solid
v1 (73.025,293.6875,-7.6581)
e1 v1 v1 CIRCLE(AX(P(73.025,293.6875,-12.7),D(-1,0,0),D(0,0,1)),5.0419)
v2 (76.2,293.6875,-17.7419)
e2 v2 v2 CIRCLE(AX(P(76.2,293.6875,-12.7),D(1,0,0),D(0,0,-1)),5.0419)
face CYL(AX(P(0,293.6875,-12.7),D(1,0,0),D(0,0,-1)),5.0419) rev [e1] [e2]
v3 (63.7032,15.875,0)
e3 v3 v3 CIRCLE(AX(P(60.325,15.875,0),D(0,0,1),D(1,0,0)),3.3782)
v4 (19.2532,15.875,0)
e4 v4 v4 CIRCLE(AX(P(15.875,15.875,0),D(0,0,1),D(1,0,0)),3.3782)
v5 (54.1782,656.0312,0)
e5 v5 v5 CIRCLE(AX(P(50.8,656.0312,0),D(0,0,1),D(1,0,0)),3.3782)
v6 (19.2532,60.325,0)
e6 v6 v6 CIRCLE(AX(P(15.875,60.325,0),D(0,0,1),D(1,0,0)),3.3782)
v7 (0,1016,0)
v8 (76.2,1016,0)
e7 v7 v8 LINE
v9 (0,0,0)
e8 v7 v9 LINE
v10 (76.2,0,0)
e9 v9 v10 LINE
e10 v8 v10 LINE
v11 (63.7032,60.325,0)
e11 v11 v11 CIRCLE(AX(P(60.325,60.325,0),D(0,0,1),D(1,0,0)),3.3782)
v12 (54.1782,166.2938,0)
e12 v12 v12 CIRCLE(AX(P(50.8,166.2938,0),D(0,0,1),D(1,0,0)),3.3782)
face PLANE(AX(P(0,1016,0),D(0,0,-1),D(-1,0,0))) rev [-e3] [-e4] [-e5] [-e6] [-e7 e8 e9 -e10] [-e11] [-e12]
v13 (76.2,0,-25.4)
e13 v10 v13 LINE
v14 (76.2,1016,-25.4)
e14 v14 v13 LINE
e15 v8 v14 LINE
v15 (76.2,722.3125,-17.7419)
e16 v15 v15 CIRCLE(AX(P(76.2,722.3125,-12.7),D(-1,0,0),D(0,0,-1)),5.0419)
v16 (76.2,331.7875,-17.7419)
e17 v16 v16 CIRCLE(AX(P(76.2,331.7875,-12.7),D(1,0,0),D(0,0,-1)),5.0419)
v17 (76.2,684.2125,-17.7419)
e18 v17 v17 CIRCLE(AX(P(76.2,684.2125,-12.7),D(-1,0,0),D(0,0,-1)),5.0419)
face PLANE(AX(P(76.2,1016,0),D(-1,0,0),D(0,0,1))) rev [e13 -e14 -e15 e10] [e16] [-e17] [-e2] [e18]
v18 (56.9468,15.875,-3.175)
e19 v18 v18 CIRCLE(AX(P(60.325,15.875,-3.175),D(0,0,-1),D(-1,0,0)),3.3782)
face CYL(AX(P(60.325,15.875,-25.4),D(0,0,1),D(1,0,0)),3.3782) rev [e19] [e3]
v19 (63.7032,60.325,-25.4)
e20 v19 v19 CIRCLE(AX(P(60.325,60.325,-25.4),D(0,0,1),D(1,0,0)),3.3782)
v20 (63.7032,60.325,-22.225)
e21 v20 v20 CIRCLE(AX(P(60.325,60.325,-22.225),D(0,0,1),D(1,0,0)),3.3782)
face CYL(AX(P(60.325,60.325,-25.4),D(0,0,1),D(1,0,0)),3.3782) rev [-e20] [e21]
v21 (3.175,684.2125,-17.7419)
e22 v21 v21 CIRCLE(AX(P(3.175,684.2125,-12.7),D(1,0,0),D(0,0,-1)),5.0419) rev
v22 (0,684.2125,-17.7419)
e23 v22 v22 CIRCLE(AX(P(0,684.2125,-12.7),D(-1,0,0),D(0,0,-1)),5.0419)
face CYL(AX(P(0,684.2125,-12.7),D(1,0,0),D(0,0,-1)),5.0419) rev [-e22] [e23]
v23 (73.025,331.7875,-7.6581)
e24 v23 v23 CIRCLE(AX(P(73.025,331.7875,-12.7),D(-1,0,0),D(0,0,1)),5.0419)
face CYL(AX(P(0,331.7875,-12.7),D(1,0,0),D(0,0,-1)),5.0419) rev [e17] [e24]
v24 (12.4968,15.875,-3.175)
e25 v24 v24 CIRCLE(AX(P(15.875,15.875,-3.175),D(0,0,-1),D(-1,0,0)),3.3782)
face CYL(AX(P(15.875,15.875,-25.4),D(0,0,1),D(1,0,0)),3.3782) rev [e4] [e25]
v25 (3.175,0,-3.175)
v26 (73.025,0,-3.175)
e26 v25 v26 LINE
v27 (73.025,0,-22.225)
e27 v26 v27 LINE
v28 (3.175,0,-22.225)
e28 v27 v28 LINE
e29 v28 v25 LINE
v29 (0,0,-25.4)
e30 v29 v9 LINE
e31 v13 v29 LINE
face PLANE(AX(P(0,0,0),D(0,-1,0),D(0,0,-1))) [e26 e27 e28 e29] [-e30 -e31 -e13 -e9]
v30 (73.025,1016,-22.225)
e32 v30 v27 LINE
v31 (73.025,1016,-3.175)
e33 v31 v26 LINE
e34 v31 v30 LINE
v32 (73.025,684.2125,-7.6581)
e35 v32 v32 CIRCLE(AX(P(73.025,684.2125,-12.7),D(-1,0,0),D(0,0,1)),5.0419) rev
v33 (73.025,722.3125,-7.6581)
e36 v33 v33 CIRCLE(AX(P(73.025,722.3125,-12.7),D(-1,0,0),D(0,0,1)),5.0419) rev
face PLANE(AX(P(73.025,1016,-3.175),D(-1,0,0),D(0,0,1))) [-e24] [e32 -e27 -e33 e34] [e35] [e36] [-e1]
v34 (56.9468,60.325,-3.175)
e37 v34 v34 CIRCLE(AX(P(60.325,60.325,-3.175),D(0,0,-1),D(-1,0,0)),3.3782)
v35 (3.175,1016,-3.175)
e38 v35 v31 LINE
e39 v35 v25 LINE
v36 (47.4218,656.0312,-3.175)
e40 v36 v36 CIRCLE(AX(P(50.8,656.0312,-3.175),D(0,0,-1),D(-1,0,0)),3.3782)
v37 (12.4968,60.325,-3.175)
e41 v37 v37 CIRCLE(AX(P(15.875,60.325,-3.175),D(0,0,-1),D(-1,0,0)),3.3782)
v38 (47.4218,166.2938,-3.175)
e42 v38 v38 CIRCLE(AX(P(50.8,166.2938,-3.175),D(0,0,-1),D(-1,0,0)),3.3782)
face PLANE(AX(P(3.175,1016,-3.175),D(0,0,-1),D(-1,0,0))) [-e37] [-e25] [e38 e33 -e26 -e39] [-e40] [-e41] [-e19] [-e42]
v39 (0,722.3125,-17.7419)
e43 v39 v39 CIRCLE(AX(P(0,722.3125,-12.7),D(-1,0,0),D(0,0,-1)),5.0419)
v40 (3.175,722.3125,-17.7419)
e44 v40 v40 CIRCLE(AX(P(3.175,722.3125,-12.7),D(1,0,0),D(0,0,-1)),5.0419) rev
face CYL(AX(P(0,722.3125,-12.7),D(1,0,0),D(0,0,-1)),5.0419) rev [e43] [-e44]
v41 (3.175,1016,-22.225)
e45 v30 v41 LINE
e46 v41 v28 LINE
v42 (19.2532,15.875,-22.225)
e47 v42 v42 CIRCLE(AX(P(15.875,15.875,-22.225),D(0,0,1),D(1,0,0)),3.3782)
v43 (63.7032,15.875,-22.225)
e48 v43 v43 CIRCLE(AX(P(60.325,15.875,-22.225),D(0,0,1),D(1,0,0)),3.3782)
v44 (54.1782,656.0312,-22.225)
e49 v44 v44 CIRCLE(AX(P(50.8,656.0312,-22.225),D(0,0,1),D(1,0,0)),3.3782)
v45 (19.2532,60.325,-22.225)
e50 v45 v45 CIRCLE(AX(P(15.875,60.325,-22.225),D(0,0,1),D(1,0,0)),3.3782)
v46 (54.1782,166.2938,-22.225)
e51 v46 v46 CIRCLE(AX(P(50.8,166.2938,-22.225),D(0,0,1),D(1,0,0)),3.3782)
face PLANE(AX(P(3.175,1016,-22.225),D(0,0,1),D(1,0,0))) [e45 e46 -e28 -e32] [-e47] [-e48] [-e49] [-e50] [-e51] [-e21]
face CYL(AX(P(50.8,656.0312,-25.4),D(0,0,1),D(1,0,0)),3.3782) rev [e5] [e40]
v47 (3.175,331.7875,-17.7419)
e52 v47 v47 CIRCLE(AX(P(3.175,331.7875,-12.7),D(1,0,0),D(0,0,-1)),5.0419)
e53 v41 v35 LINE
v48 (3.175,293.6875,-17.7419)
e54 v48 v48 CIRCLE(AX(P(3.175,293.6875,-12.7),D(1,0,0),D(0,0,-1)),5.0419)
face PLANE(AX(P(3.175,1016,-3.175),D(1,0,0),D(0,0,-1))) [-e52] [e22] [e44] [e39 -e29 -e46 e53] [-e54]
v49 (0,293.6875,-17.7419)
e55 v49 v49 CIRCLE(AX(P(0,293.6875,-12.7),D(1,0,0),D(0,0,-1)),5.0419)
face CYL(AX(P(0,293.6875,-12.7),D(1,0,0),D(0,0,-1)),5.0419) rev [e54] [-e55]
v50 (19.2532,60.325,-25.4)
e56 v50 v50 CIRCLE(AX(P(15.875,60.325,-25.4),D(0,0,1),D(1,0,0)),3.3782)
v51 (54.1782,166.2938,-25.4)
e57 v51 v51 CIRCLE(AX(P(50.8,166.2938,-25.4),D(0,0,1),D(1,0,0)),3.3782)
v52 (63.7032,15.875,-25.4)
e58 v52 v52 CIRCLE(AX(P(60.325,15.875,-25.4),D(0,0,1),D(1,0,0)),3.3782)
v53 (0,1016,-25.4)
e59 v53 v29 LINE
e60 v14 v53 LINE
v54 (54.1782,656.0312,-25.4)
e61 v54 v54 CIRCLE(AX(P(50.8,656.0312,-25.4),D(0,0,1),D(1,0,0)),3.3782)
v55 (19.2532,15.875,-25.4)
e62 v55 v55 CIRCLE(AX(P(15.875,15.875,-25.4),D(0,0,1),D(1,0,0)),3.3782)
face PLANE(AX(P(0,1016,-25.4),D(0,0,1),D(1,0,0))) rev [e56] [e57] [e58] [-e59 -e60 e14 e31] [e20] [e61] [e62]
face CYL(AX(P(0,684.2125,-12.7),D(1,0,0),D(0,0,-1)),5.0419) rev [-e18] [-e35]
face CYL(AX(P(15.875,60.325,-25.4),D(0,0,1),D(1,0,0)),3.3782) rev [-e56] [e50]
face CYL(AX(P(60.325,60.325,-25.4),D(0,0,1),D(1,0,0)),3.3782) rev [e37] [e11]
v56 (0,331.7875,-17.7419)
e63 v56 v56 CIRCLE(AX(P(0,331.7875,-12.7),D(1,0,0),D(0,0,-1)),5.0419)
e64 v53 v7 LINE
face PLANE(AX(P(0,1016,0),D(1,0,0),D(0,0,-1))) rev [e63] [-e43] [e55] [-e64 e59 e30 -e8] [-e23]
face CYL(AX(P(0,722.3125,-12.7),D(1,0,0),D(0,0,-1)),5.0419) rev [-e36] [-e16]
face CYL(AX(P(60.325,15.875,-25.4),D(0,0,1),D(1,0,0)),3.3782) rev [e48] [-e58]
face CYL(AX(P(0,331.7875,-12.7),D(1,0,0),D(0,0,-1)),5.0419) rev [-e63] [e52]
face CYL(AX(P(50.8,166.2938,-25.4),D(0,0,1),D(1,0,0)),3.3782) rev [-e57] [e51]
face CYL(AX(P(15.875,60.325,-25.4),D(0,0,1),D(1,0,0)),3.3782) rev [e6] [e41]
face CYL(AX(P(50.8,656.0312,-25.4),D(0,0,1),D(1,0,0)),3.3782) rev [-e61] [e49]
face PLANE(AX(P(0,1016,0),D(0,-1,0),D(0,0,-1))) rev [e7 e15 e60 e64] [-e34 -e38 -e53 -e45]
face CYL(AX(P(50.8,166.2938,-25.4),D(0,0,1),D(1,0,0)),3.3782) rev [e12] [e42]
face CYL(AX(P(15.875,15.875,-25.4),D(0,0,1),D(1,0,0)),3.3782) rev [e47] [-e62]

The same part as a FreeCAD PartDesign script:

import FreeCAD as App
import Part
import Sketcher

V = App.Vector
Q = App.Units.Quantity


def add_polygon(sketch, points):
    """Adds a closed chain of lines whose ends are joined by coincident constraints."""
    first, n = sketch.GeometryCount, len(points)
    for a, b in zip(points, points[1:] + points[:1]):
        sketch.addGeometry(Part.LineSegment(App.Vector(*a, 0), App.Vector(*b, 0)), False)
    for i in range(n):
        sketch.addConstraint(Sketcher.Constraint("Coincident", first + i, 2, first + (i + 1) % n, 1))

doc = App.newDocument("Part")
body = doc.addObject("PartDesign::Body", "Body")

# Sketch on XZ plane
sketch1 = doc.addObject("Sketcher::SketchObject", "Sketch")
body.addObject(sketch1)
sketch1.AttachmentSupport = (doc.XZ_Plane, [""])
sketch1.MapMode = "FlatFace"
add_polygon(sketch1, [(0, -25.4), (0, 0), (76.2, 0), (76.2, -25.4)])  # lines 0-3
add_polygon(sketch1, [(73.025, -3.175), (3.175, -3.175), (3.175, -22.225), (73.025, -22.225)])  # lines 4-7
sketch1.addConstraint([
    Sketcher.Constraint("Vertical", 0),
    Sketcher.Constraint("Horizontal", 1),
    Sketcher.Constraint("Vertical", 2),
    Sketcher.Constraint("Horizontal", 3),
    Sketcher.Constraint("Horizontal", 4),
    Sketcher.Constraint("Vertical", 5),
    Sketcher.Constraint("Horizontal", 6),
    Sketcher.Constraint("Vertical", 7),
    Sketcher.Constraint("Coincident", 0, 2, -1, 1),
    Sketcher.Constraint("DistanceX", 1, 1, 1, 2, Q("3 in")),
    Sketcher.Constraint("DistanceY", 0, 1, 0, 2, Q("1 in")),
    Sketcher.Constraint("DistanceX", 4, 2, 4, 1, Q("2.75 in")),
    Sketcher.Constraint("DistanceY", 5, 2, 5, 1, Q("0.75 in")),
    Sketcher.Constraint("DistanceX", -1, 1, 4, 2, Q("0.125 in")),
    Sketcher.Constraint("DistanceY", 4, 2, -1, 1, Q("0.125 in")),
])
pad1 = doc.addObject("PartDesign::Pad", "Pad")
body.addObject(pad1)
pad1.Profile = sketch1
pad1.Length = Q("40 in")
pad1.Reversed = True

# Sketch on YZ plane
sketch2 = doc.addObject("Sketcher::SketchObject", "Sketch001")
body.addObject(sketch2)
sketch2.AttachmentSupport = (doc.YZ_Plane, [""])
sketch2.MapMode = "FlatFace"
sketch2.AttachmentOffset = App.Placement(V(0, 0, 3 * 25.4), App.Rotation())
sketch2.addGeometry([
    Part.Circle(V(293.6875, -12.7, 0), V(0, 0, 1), 5.0419),
    Part.Circle(V(331.7875, -12.7, 0), V(0, 0, 1), 5.0419),
], False)
sketch2.addConstraint([
    Sketcher.Constraint("Equal", 0, 1),
    Sketcher.Constraint("Horizontal", 0, 3, 1, 3),
    Sketcher.Constraint("Diameter", 0, Q("0.397 in")),
    Sketcher.Constraint("DistanceY", 0, 3, -1, 1, Q("0.5 in")),
    Sketcher.Constraint("DistanceX", 0, 3, 1, 3, Q("1.5 in")),
    Sketcher.Constraint("DistanceX", -1, 1, 0, 3, Q("11.5625 in")),
])
pocket1 = doc.addObject("PartDesign::Pocket", "Pocket")
body.addObject(pocket1)
pocket1.Profile = sketch2
pocket1.Type = "ThroughAll"
doc.recompute()

datumplane = doc.addObject("PartDesign::Plane", "DatumPlane")
body.addObject(datumplane)
datumplane.AttachmentSupport = (doc.XZ_Plane, [""])
datumplane.MapMode = "FlatFace"
datumplane.AttachmentOffset = App.Placement(V(0, 0, -20 * 25.4), App.Rotation())
mirrored = doc.addObject("PartDesign::Mirrored", "Mirrored")
body.addObject(mirrored)
mirrored.Originals = [pocket1]
mirrored.MirrorPlane = (datumplane, [""])
body.Tip = mirrored

# Sketch on XY plane
sketch3 = doc.addObject("Sketcher::SketchObject", "Sketch002")
body.addObject(sketch3)
sketch3.AttachmentSupport = (doc.XY_Plane, [""])
sketch3.MapMode = "FlatFace"
sketch3.addGeometry([
    Part.Circle(V(15.875, 15.875, 0), V(0, 0, 1), 3.3782),
    Part.Circle(V(15.875, 60.325, 0), V(0, 0, 1), 3.3782),
    Part.Circle(V(60.325, 15.875, 0), V(0, 0, 1), 3.3782),
    Part.Circle(V(60.325, 60.325, 0), V(0, 0, 1), 3.3782),
], False)
sketch3.addConstraint([
    Sketcher.Constraint("Equal", 0, 1),
    Sketcher.Constraint("Equal", 1, 2),
    Sketcher.Constraint("Equal", 2, 3),
    Sketcher.Constraint("Horizontal", 0, 3, 2, 3),
    Sketcher.Constraint("Horizontal", 1, 3, 3, 3),
    Sketcher.Constraint("Vertical", 0, 3, 1, 3),
    Sketcher.Constraint("Vertical", 2, 3, 3, 3),
    Sketcher.Constraint("Diameter", 0, Q("0.266 in")),
    Sketcher.Constraint("DistanceY", 0, 3, 1, 3, Q("1.75 in")),
    Sketcher.Constraint("DistanceX", 0, 3, 2, 3, Q("1.75 in")),
    Sketcher.Constraint("DistanceX", -1, 1, 0, 3, Q("0.625 in")),
    Sketcher.Constraint("DistanceY", -1, 1, 0, 3, Q("0.625 in")),
])
pocket2 = doc.addObject("PartDesign::Pocket", "Pocket001")
body.addObject(pocket2)
pocket2.Profile = sketch3
pocket2.Type = "ThroughAll"

# Sketch on XY plane
sketch4 = doc.addObject("Sketcher::SketchObject", "Sketch003")
body.addObject(sketch4)
sketch4.AttachmentSupport = (doc.XY_Plane, [""])
sketch4.MapMode = "FlatFace"
sketch4.addGeometry([
    Part.Circle(V(50.8, 166.2938, 0), V(0, 0, 1), 3.3782),
    Part.Circle(V(50.8, 656.0312, 0), V(0, 0, 1), 3.3782),
], False)
sketch4.addConstraint([
    Sketcher.Constraint("Equal", 0, 1),
    Sketcher.Constraint("Vertical", 0, 3, 1, 3),
    Sketcher.Constraint("Diameter", 0, Q("0.266 in")),
    Sketcher.Constraint("DistanceX", -1, 1, 0, 3, Q("2 in")),
    Sketcher.Constraint("DistanceY", -1, 1, 0, 3, Q("6.547 in")),
    Sketcher.Constraint("DistanceY", -1, 1, 1, 3, Q("25.828 in")),
])
pocket3 = doc.addObject("PartDesign::Pocket", "Pocket002")
body.addObject(pocket3)
pocket3.Profile = sketch4
pocket3.Type = "ThroughAll"

doc.recompute()
